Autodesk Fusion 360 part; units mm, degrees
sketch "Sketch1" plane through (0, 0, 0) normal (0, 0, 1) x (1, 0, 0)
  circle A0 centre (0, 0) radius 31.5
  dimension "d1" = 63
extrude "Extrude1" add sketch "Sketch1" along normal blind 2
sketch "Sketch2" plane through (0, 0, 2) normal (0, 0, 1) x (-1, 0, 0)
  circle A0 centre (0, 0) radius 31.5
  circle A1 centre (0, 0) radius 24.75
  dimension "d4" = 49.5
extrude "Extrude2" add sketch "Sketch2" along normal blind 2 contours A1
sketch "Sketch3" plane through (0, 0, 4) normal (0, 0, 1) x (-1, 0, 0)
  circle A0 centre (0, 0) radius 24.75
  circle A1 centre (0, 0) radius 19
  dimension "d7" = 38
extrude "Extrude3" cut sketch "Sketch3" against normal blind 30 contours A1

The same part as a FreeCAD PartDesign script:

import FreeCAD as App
import Part
import Sketcher

doc = App.newDocument("Part")
params = doc.addObject("Spreadsheet::Sheet", "Params")
for row, (alias, value) in enumerate([
    ("sketch1_diameter", "63 mm"),
    ("pad1_length", "2 mm"),
    ("sketch2_diameter", "49.5 mm"),
    ("pad2_length", "2 mm"),
    ("sketch3_diameter", "38 mm"),
    ("pocket1_length", "30 mm"),
], start=1):
    params.set(f"A{row}", alias)
    params.set(f"B{row}", "=" + value)
    params.setAlias(f"B{row}", alias)

body = doc.addObject("PartDesign::Body", "Body")

# Sketch on XY plane
sketch1 = doc.addObject("Sketcher::SketchObject", "Sketch")
body.addObject(sketch1)
sketch1.AttachmentSupport = (doc.XY_Plane, [""])
sketch1.MapMode = "FlatFace"
sketch1.addGeometry(Part.Circle(App.Vector(0, 0, 0), App.Vector(0, 0, 1), 32), False)
sketch1.addConstraint(Sketcher.Constraint("Coincident", 0, 3, -1, 1))
sketch1.addConstraint(Sketcher.Constraint("Diameter", 0, 63.0))
sketch1.setExpression("Constraints[1]", "Params.sketch1_diameter")
pad1 = doc.addObject("PartDesign::Pad", "Pad")
body.addObject(pad1)
pad1.Profile = sketch1
pad1.setExpression("Length", "Params.pad1_length")

# Sketch on XY plane
sketch2 = doc.addObject("Sketcher::SketchObject", "Sketch001")
body.addObject(sketch2)
sketch2.AttachmentSupport = (doc.XY_Plane, [""])
sketch2.MapMode = "FlatFace"
sketch2.AttachmentOffset = App.Placement(App.Vector(0, 0, 2), App.Rotation())
sketch2.addGeometry(Part.Circle(App.Vector(0, 0, 0), App.Vector(0, 0, 1), 25), False)
sketch2.addConstraint(Sketcher.Constraint("Coincident", 0, 3, -1, 1))
sketch2.addConstraint(Sketcher.Constraint("Diameter", 0, 49.5))
sketch2.setExpression("Constraints[1]", "Params.sketch2_diameter")
pad2 = doc.addObject("PartDesign::Pad", "Pad001")
body.addObject(pad2)
pad2.Profile = sketch2
pad2.setExpression("Length", "Params.pad2_length")

# Sketch on XY plane
sketch3 = doc.addObject("Sketcher::SketchObject", "Sketch002")
body.addObject(sketch3)
sketch3.AttachmentSupport = (doc.XY_Plane, [""])
sketch3.MapMode = "FlatFace"
sketch3.AttachmentOffset = App.Placement(App.Vector(0, 0, 4), App.Rotation())
sketch3.addGeometry(Part.Circle(App.Vector(0, 0, 0), App.Vector(0, 0, 1), 19), False)
sketch3.addConstraint(Sketcher.Constraint("Coincident", 0, 3, -1, 1))
sketch3.addConstraint(Sketcher.Constraint("Diameter", 0, 38.0))
sketch3.setExpression("Constraints[1]", "Params.sketch3_diameter")
pocket1 = doc.addObject("PartDesign::Pocket", "Pocket")
body.addObject(pocket1)
pocket1.Profile = sketch3
pocket1.setExpression("Length", "Params.pocket1_length")

doc.recompute()
